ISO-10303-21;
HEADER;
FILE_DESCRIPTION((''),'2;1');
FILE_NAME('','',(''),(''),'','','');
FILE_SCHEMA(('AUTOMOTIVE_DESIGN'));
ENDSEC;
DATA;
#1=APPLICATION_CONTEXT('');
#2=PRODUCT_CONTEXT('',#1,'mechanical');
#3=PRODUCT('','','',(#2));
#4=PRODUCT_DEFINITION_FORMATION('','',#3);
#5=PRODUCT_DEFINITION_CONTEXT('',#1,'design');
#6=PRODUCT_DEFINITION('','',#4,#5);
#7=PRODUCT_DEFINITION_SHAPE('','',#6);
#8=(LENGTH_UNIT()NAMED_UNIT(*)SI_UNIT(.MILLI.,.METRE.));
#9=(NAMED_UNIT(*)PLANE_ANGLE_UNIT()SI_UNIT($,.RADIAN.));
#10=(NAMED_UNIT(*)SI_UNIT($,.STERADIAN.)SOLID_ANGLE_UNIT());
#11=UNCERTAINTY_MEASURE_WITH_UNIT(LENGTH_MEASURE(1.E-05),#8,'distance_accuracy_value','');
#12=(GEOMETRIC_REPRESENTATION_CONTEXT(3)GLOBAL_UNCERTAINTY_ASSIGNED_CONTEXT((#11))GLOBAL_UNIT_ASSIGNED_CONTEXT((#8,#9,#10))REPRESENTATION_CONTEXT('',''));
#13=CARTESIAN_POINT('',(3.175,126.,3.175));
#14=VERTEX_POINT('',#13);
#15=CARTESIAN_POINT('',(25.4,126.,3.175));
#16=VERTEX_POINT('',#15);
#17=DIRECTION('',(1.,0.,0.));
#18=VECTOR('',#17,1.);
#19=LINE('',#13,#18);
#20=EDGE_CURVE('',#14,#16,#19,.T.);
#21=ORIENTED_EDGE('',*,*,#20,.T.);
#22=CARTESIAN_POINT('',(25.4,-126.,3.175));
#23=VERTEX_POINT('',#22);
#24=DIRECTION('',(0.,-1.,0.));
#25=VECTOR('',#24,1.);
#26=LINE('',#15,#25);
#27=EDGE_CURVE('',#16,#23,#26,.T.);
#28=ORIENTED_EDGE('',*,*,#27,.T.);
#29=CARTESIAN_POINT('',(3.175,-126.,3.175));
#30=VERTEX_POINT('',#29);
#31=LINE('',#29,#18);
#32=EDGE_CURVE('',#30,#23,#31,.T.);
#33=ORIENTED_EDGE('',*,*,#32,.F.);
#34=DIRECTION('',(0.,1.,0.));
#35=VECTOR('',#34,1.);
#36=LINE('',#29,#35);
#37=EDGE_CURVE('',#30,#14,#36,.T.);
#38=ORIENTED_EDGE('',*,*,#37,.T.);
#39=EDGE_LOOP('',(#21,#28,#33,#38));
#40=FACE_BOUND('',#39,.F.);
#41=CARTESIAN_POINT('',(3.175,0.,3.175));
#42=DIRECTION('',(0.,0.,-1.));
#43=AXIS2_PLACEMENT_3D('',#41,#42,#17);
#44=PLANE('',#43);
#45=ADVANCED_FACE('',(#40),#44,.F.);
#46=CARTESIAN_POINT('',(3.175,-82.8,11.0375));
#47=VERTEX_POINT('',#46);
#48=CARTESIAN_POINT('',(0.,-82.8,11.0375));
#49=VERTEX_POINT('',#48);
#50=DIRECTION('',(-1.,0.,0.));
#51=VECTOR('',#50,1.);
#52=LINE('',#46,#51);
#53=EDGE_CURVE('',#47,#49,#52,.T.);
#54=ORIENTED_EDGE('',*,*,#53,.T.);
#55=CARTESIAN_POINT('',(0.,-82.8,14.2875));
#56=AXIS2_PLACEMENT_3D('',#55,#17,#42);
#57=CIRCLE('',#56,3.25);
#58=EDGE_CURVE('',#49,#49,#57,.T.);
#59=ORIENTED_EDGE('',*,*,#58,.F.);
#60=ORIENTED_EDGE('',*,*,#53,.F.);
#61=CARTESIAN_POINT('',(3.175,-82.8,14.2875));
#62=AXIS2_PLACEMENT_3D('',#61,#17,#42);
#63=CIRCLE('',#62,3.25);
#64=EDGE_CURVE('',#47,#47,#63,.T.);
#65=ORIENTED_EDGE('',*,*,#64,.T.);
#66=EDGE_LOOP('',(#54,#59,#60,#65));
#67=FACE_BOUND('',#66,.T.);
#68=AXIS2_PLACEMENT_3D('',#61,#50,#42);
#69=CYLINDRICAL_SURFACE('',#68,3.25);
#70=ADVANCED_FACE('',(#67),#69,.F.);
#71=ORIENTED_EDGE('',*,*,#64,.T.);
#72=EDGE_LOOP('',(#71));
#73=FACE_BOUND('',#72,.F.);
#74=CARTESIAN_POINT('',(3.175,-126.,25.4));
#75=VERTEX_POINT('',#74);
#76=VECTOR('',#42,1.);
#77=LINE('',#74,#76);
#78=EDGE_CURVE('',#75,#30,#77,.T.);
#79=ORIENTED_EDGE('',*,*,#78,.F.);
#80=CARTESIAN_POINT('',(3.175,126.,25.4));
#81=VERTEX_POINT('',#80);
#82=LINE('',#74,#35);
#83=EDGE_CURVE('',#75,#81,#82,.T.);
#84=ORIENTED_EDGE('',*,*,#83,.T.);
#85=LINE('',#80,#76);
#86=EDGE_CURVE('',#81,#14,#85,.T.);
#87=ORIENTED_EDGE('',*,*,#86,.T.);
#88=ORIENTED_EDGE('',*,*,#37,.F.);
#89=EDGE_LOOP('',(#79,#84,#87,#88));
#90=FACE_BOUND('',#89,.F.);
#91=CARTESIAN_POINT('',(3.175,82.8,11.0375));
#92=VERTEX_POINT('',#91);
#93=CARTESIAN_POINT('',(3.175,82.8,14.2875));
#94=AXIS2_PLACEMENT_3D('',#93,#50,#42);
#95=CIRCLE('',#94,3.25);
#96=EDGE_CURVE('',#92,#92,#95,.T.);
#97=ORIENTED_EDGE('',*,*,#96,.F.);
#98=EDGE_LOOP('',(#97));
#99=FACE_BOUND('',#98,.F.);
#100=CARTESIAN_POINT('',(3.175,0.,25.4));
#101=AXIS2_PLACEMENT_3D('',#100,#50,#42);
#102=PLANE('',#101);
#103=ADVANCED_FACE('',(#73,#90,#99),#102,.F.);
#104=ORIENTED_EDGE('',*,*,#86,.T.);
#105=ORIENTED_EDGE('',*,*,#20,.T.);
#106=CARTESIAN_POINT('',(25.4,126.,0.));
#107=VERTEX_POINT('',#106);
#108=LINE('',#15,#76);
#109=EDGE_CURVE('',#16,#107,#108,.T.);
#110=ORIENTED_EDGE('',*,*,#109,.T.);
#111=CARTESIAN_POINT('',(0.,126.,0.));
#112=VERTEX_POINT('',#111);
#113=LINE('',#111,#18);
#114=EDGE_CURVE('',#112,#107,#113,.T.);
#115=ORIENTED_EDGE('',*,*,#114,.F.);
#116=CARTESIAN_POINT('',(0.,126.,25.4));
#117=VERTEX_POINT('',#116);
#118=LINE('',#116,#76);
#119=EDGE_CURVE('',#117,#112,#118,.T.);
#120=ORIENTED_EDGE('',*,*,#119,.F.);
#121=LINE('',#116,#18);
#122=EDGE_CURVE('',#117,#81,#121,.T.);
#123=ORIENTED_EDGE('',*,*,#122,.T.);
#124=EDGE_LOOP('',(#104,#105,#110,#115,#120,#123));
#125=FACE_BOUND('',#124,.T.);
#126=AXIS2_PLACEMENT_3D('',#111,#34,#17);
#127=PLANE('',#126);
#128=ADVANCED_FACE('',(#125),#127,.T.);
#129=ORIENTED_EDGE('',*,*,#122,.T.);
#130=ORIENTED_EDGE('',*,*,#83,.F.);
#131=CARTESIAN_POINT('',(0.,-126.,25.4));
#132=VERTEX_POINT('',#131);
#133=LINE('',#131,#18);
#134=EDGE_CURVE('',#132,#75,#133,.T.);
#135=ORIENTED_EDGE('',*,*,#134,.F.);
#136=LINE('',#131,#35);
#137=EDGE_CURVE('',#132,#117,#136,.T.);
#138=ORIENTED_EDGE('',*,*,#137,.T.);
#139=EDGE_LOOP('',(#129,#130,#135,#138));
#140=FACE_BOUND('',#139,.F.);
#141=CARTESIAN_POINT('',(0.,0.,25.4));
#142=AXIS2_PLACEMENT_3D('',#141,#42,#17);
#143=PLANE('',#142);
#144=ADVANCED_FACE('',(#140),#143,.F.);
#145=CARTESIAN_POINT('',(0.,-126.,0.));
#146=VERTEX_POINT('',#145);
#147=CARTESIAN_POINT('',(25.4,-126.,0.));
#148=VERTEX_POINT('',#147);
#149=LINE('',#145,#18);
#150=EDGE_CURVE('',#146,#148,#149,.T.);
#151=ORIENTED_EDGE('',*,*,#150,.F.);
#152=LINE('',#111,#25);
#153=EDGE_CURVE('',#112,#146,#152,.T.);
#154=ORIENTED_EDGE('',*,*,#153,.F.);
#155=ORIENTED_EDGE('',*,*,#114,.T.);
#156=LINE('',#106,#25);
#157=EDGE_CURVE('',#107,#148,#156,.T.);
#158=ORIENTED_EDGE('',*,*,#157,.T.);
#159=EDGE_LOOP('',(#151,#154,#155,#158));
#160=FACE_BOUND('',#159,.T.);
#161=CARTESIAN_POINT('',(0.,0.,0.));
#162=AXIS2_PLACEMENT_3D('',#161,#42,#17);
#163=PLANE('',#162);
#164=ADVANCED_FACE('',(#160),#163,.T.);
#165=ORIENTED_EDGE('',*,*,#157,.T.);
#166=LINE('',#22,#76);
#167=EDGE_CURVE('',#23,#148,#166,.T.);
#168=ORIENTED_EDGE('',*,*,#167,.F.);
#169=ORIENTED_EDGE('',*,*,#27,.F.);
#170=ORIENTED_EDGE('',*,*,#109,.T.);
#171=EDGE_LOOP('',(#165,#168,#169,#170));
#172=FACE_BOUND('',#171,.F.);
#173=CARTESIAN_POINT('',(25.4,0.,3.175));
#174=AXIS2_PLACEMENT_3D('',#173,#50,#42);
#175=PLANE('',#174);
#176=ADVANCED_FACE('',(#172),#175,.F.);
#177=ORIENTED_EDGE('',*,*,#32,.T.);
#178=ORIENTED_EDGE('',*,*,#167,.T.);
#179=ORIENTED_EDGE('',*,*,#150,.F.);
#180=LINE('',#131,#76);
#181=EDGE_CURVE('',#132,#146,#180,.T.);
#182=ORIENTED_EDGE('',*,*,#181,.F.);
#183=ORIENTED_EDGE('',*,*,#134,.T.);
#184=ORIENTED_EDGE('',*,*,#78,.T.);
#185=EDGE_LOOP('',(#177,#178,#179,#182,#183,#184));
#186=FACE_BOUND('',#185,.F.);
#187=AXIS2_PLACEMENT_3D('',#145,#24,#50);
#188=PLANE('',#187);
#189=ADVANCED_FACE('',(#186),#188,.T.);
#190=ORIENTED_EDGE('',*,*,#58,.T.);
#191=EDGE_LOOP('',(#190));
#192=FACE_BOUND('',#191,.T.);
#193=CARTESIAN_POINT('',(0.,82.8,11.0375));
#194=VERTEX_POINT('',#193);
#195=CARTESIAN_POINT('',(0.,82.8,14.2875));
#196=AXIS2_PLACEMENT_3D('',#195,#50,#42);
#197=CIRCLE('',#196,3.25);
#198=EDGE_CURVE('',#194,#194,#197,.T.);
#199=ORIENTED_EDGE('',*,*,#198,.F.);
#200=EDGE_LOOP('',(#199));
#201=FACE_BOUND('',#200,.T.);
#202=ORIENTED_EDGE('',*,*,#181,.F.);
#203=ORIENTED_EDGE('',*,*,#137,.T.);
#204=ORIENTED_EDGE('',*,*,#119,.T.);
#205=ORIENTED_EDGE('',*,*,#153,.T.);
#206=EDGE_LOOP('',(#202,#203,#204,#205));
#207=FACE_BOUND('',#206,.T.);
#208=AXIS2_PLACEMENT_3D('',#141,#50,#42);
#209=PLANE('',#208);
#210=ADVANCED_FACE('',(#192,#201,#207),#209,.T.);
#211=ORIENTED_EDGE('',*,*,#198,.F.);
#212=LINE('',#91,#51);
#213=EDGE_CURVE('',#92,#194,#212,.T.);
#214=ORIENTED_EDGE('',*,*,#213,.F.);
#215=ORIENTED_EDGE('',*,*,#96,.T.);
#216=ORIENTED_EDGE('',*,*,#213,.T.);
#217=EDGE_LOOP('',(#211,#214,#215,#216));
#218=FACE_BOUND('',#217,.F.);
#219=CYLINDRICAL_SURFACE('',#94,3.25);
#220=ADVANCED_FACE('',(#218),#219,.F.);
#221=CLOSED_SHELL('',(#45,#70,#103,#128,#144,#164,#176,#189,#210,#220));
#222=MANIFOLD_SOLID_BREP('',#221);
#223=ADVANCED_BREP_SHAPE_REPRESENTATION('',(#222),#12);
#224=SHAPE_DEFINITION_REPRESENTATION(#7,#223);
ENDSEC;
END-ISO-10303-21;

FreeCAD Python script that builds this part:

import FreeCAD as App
import Part
import Sketcher

V = App.Vector
Q = App.Units.Quantity

doc = App.newDocument("Part")
body = doc.addObject("PartDesign::Body", "Body")

sketch1 = body.newObject("Sketcher::SketchObject", "Sketch")
sketch1.AttachmentSupport = (doc.getObject("XZ_Plane"), [""])
sketch1.MapMode = "FlatFace"
sketch1.addGeometry([
    Part.LineSegment(V(0, 0, 0), V(0, 25.4, 0)),
    Part.LineSegment(V(0, 25.4, 0), V(3.175, 25.4, 0)),
    Part.LineSegment(V(3.175, 25.4, 0), V(3.175, 3.175, 0)),
    Part.LineSegment(V(3.175, 3.175, 0), V(25.4, 3.175, 0)),
    Part.LineSegment(V(25.4, 3.175, 0), V(25.4, 0, 0)),
    Part.LineSegment(V(25.4, 0, 0), V(0, 0, 0)),
], False)
sketch1.addConstraint([
    Sketcher.Constraint("Coincident", 0, 2, 1, 1),
    Sketcher.Constraint("Coincident", 1, 2, 2, 1),
    Sketcher.Constraint("Coincident", 2, 2, 3, 1),
    Sketcher.Constraint("Coincident", 3, 2, 4, 1),
    Sketcher.Constraint("Coincident", 4, 2, 5, 1),
    Sketcher.Constraint("Coincident", 5, 2, 0, 1),
    Sketcher.Constraint("Vertical", 0),
    Sketcher.Constraint("Horizontal", 1),
    Sketcher.Constraint("Vertical", 2),
    Sketcher.Constraint("Horizontal", 3),
    Sketcher.Constraint("Vertical", 4),
    Sketcher.Constraint("Horizontal", 5),
    Sketcher.Constraint("Coincident", 5, 2, -1, 1),
    Sketcher.Constraint("Equal", 5, 0),
    Sketcher.Constraint("Equal", 3, 2),
    Sketcher.Constraint("DistanceX", 5, 2, 5, 1, Q("1 in")),
    Sketcher.Constraint("DistanceX", 1, 1, 1, 2, Q("0.125 in")),
])
pad1 = body.newObject("PartDesign::Pad", "Pad")
pad1.Profile = sketch1
pad1.Length = 126
pad1.Reversed = True

sketch2 = body.newObject("Sketcher::SketchObject", "Sketch001")
sketch2.AttachmentSupport = (doc.getObject("YZ_Plane"), [""])
sketch2.MapMode = "FlatFace"
sketch2.AttachmentOffset = App.Placement(V(0, 0, 0.125 * 25.4), App.Rotation())
sketch2.addGeometry(Part.Circle(V(82.8, 14.2875, 0), V(0, 0, 1), 3.25), False)
sketch2.addConstraint([
    Sketcher.Constraint("Diameter", 0, Q("0.2559 in")),
    Sketcher.Constraint("DistanceY", -1, 1, 0, 3, Q("0.5625 in")),
    Sketcher.Constraint("DistanceX", -1, 1, 0, 3, 82.8),
])
doc.recompute()
hole = body.newObject("PartDesign::Hole", "Hole")
hole.Profile = sketch2
hole.ThreadType = "None"
hole.Diameter = Q("0.2559055 in")
hole.DepthType = "ThroughAll"
doc.recompute()

mirrored = body.newObject("PartDesign::Mirrored", "Mirrored")
mirrored.TransformMode = "Transform body"
mirrored.MirrorPlane = (doc.getObject("XZ_Plane"), [""])
body.Tip = mirrored

doc.recompute()
